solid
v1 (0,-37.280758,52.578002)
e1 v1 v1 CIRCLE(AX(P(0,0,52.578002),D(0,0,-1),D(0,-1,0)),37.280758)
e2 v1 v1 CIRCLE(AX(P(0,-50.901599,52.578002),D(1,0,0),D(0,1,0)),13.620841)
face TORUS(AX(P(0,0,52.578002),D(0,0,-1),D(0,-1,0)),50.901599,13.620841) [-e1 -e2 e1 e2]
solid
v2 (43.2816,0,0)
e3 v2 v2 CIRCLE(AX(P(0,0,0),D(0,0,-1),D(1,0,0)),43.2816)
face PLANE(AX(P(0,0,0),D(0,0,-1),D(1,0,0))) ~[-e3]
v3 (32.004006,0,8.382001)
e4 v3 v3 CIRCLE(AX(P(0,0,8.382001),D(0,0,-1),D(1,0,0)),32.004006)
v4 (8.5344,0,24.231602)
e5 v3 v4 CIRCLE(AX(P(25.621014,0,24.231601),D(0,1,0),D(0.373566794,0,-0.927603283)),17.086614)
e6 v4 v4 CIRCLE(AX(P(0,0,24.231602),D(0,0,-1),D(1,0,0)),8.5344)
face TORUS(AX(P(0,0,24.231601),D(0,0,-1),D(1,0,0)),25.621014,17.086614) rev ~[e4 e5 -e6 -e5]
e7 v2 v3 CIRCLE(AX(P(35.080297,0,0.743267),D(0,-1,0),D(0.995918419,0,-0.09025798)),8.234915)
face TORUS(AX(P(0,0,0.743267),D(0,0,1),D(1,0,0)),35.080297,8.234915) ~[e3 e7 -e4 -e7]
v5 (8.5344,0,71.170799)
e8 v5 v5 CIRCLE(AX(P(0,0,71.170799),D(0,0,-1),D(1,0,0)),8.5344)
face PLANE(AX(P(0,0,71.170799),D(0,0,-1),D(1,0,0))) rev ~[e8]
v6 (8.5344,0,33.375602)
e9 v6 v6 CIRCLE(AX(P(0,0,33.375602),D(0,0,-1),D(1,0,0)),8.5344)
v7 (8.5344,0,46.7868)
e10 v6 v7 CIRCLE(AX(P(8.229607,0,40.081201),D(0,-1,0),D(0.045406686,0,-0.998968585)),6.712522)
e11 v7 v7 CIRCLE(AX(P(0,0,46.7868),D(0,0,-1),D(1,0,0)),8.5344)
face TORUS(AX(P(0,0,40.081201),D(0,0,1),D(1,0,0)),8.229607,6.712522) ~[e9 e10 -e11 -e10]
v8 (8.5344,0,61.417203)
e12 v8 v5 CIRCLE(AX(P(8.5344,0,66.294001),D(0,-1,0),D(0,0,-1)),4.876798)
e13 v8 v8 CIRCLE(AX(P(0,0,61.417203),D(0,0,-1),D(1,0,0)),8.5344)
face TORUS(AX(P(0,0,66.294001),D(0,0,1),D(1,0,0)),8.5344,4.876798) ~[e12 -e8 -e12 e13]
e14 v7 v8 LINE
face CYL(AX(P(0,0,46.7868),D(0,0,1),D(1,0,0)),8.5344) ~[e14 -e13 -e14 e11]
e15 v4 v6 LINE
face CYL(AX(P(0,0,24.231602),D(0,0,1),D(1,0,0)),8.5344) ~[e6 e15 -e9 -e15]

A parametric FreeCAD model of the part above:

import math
import FreeCAD as App
import Part
import Sketcher
from FreeCAD import Vector
Q = App.Units.Quantity

doc = App.newDocument("Part")
body = doc.addObject("PartDesign::Body", "Body")

sketch1 = doc.addObject("Sketcher::SketchObject", "Sketch")
body.addObject(sketch1)
sketch1.AttachmentSupport = (doc.XZ_Plane, [""])
sketch1.MapMode = "FlatFace"
sketch1.addGeometry(Part.LineSegment(Vector(8.5, 71.2, 0), Vector(0, 71.2, 0)), False)
sketch1.addGeometry(Part.LineSegment(Vector(0, 71.2, 0), Vector(0, 0, 0)), False)
sketch1.addGeometry(Part.LineSegment(Vector(0, 0, 0), Vector(43.3, 0, 0)), False)
sketch1.addGeometry(Part.ArcOfCircle(Part.Circle(Vector(35.1, 0.7, 0), Vector(0, 0, 1), 8.2), math.radians(-5), math.radians(112)), False)
sketch1.addGeometry(Part.ArcOfCircle(Part.Circle(Vector(25.6, 24.2, 0), Vector(0, 0, 1), 17.1), math.radians(180), math.radians(292)), False)
sketch1.addGeometry(Part.LineSegment(Vector(8.5, 24.2, 0), Vector(8.5, 33.4, 0)), False)
sketch1.addGeometry(Part.ArcOfCircle(Part.Circle(Vector(8.2, 40.1, 0), Vector(0, 0, 1), 6.7), math.radians(-87), math.radians(87)), False)
sketch1.addGeometry(Part.LineSegment(Vector(8.5, 46.8, 0), Vector(8.5, 61.4, 0)), False)
sketch1.addGeometry(Part.ArcOfCircle(Part.Circle(Vector(8.5, 66.3, 0), Vector(0, 0, 1), 4.9), math.radians(-90), math.radians(90)), False)
sketch1.addConstraint(Sketcher.Constraint("Coincident", 0, 2, 1, 1))
sketch1.addConstraint(Sketcher.Constraint("Coincident", 1, 2, 2, 1))
sketch1.addConstraint(Sketcher.Constraint("Coincident", 2, 2, 3, 1))
sketch1.addConstraint(Sketcher.Constraint("Tangent", 3, 2, 4, 2))
sketch1.addConstraint(Sketcher.Constraint("Tangent", 4, 1, 5, 1))
sketch1.addConstraint(Sketcher.Constraint("Coincident", 5, 2, 6, 1))
sketch1.addConstraint(Sketcher.Constraint("Coincident", 6, 2, 7, 1))
sketch1.addConstraint(Sketcher.Constraint("Coincident", 7, 2, 8, 1))
sketch1.addConstraint(Sketcher.Constraint("Tangent", 8, 2, 0, 1))
sketch1.addConstraint(Sketcher.Constraint("Horizontal", 0))
sketch1.addConstraint(Sketcher.Constraint("Vertical", 1))
sketch1.addConstraint(Sketcher.Constraint("Horizontal", 2))
sketch1.addConstraint(Sketcher.Constraint("Vertical", 5))
sketch1.addConstraint(Sketcher.Constraint("Vertical", 7))
sketch1.addConstraint(Sketcher.Constraint("Coincident", 1, 2, -1, 1))
sketch1.addConstraint(Sketcher.Constraint("Vertical", 8, 3, 4, 1))
sketch1.addConstraint(Sketcher.Constraint("Vertical", 5, 2, 6, 2))
sketch1.addConstraint(Sketcher.Constraint("Radius", 8, Q("0.1919999 in")))
sketch1.addConstraint(Sketcher.Constraint("DistanceY", 5, 1, 5, 2, Q("0.36 in")))
sketch1.addConstraint(Sketcher.Constraint("DistanceX", 0, 2, 0, 1, Q("0.336 in")))
sketch1.addConstraint(Sketcher.Constraint("DistanceX", 2, 1, 2, 2, Q("1.704 in")))
sketch1.addConstraint(Sketcher.Constraint("DistanceY", 1, 2, 1, 1, Q("2.802 in")))
sketch1.addConstraint(Sketcher.Constraint("DistanceY", 7, 1, 7, 2, Q("0.5760001 in")))
sketch1.addConstraint(Sketcher.Constraint("DistanceY", -1, 1, 3, 2, Q("0.33 in")))
sketch1.addConstraint(Sketcher.Constraint("DistanceY", 6, 3, 7, 2, Q("0.8400001 in")))
sketch1.addConstraint(Sketcher.Constraint("DistanceX", 6, 3, 3, 2, Q("0.936 in")))
sketch1.addConstraint(Sketcher.Constraint("Radius", 3, Q("8.234915 mm")))
revolution = doc.addObject("PartDesign::Revolution", "Revolution")
body.addObject(revolution)
revolution.Profile = sketch1
revolution.ReferenceAxis = (sketch1, ["V_Axis"])
revolution.Angle = 360
body2 = doc.addObject("PartDesign::Body", "Body001")

sketch2 = doc.addObject("Sketcher::SketchObject", "Sketch001")
body2.addObject(sketch2)
sketch2.AttachmentSupport = (doc.getObject("YZ_Plane001"), [""])
sketch2.MapMode = "FlatFace"
sketch2.addGeometry(Part.Circle(Vector(-51, 53, 0), Vector(0, 0, 1), 14), False)
sketch2.addConstraint(Sketcher.Constraint("DistanceY", -1, 1, 0, 3, Q("2.0700001 in")))
sketch2.addConstraint(Sketcher.Constraint("DistanceX", 0, 3, -1, 1, Q("2.004 in")))
sketch2.addConstraint(Sketcher.Constraint("Diameter", 0, Q("27.241682 mm")))
revolution2 = doc.addObject("PartDesign::Revolution", "Revolution001")
body2.addObject(revolution2)
revolution2.Profile = sketch2
revolution2.ReferenceAxis = (sketch2, ["V_Axis"])
revolution2.Angle = 360

doc.recompute()
